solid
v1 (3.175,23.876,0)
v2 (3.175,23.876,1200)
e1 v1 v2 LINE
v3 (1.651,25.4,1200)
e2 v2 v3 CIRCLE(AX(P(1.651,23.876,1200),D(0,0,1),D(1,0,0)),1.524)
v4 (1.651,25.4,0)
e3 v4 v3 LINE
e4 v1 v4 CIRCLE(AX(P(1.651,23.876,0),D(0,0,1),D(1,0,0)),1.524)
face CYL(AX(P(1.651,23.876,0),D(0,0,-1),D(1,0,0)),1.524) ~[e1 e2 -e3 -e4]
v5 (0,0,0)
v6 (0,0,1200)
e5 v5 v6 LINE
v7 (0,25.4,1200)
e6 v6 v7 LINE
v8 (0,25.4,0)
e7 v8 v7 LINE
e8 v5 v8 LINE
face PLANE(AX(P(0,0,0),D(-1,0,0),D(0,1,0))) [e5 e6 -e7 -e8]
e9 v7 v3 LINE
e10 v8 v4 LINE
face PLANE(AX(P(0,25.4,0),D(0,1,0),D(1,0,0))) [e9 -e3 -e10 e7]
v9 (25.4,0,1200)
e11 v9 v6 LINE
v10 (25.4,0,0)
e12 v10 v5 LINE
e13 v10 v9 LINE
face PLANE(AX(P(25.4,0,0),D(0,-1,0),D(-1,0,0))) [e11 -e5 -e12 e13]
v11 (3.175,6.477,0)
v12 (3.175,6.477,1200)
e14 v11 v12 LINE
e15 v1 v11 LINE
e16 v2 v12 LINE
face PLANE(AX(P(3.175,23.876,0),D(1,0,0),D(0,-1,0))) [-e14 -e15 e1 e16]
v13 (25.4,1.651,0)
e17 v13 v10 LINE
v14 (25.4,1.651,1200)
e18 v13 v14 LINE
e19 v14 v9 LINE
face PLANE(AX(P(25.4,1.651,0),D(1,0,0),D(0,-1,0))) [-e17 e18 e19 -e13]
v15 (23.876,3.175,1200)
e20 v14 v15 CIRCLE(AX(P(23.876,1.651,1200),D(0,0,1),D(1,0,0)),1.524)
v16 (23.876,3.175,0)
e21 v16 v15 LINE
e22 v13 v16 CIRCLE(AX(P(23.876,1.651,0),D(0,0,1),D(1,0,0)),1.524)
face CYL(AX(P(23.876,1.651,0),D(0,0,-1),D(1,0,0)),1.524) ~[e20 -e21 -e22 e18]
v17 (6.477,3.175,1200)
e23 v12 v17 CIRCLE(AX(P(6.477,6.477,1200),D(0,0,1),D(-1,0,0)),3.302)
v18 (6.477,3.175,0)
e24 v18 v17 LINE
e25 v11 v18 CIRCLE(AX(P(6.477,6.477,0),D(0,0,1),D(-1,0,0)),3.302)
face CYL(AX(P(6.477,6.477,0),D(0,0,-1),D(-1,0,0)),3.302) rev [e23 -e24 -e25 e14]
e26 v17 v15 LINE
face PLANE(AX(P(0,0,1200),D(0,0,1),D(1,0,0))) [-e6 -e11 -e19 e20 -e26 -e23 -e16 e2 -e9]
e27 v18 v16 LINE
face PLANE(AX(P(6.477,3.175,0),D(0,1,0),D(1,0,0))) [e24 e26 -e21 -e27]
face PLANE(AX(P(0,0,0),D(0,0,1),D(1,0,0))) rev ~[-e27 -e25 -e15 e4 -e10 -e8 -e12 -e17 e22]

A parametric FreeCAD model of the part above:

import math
import FreeCAD as App
import Part
import Sketcher
from FreeCAD import Vector
Q = App.Units.Quantity

doc = App.newDocument("Part")
params = doc.addObject("Spreadsheet::Sheet", "Params")
for row, (alias, value) in enumerate([
    ("sketch1_width", "1 in"),
    ("sketch1_radius", "0.06 in"),
    ("sketch1_radius2", "0.13 in"),
    ("pad1_length", "47.2440945 in"),
], start=1):
    params.set(f"A{row}", alias)
    params.set(f"B{row}", "=" + value)
    params.setAlias(f"B{row}", alias)

body = doc.addObject("PartDesign::Body", "Body")

sketch1 = body.newObject("Sketcher::SketchObject", "Sketch")
sketch1.AttachmentSupport = (doc.getObject("XY_Plane"), [""])
sketch1.MapMode = "FlatFace"
sketch1.addGeometry(Part.LineSegment(Vector(0, 0, 0), Vector(25.4, 0, 0)), False)
sketch1.addGeometry(Part.LineSegment(Vector(25.4, 0, 0), Vector(25.4, 1.7, 0)), False)
sketch1.addGeometry(Part.ArcOfCircle(Part.Circle(Vector(23.9, 1.7, 0), Vector(0, 0, 1), 1.5), math.radians(0), math.radians(90)), False)
sketch1.addGeometry(Part.LineSegment(Vector(23.9, 3.2, 0), Vector(6.5, 3.2, 0)), False)
sketch1.addGeometry(Part.ArcOfCircle(Part.Circle(Vector(6.5, 6.5, 0), Vector(0, 0, 1), 3.3), math.radians(180), math.radians(270)), False)
sketch1.addGeometry(Part.LineSegment(Vector(3.2, 6.5, 0), Vector(3.2, 23.9, 0)), False)
sketch1.addGeometry(Part.ArcOfCircle(Part.Circle(Vector(1.7, 23.9, 0), Vector(0, 0, 1), 1.5), math.radians(0), math.radians(90)), False)
sketch1.addGeometry(Part.LineSegment(Vector(1.7, 25.4, 0), Vector(0, 25.4, 0)), False)
sketch1.addGeometry(Part.LineSegment(Vector(0, 25.4, 0), Vector(0, 0, 0)), False)
sketch1.addConstraint(Sketcher.Constraint("Coincident", 0, 2, 1, 1))
sketch1.addConstraint(Sketcher.Constraint("Tangent", 1, 2, 2, 1))
sketch1.addConstraint(Sketcher.Constraint("Tangent", 2, 2, 3, 1))
sketch1.addConstraint(Sketcher.Constraint("Tangent", 3, 2, 4, 2))
sketch1.addConstraint(Sketcher.Constraint("Tangent", 4, 1, 5, 1))
sketch1.addConstraint(Sketcher.Constraint("Tangent", 5, 2, 6, 1))
sketch1.addConstraint(Sketcher.Constraint("Tangent", 6, 2, 7, 1))
sketch1.addConstraint(Sketcher.Constraint("Coincident", 7, 2, 8, 1))
sketch1.addConstraint(Sketcher.Constraint("Coincident", 8, 2, 0, 1))
sketch1.addConstraint(Sketcher.Constraint("Horizontal", 0))
sketch1.addConstraint(Sketcher.Constraint("Vertical", 1))
sketch1.addConstraint(Sketcher.Constraint("Horizontal", 3))
sketch1.addConstraint(Sketcher.Constraint("Vertical", 5))
sketch1.addConstraint(Sketcher.Constraint("Horizontal", 7))
sketch1.addConstraint(Sketcher.Constraint("Vertical", 8))
sketch1.addConstraint(Sketcher.Constraint("Coincident", 8, 2, -1, 1))
sketch1.addConstraint(Sketcher.Constraint("Equal", 2, 6))
sketch1.addConstraint(Sketcher.Constraint("Equal", 7, 1))
sketch1.addConstraint(Sketcher.Constraint("Equal", 3, 5))
sketch1.addConstraint(Sketcher.Constraint("DistanceX", 0, 1, 0, 2, Q("1 in")))
sketch1.addConstraint(Sketcher.Constraint("Radius", 2, Q("0.06 in")))
sketch1.addConstraint(Sketcher.Constraint("Radius", 4, Q("0.13 in")))
sketch1.addConstraint(Sketcher.Constraint("DistanceY", -1, 1, 2, 2, Q("0.125 in")))
sketch1.setExpression("Constraints[19]", "Params.sketch1_width")
sketch1.setExpression("Constraints[20]", "Params.sketch1_radius")
sketch1.setExpression("Constraints[21]", "Params.sketch1_radius2")
pad1 = body.newObject("PartDesign::Pad", "Pad")
pad1.Profile = sketch1
pad1.setExpression("Length", "Params.pad1_length")

doc.recompute()
